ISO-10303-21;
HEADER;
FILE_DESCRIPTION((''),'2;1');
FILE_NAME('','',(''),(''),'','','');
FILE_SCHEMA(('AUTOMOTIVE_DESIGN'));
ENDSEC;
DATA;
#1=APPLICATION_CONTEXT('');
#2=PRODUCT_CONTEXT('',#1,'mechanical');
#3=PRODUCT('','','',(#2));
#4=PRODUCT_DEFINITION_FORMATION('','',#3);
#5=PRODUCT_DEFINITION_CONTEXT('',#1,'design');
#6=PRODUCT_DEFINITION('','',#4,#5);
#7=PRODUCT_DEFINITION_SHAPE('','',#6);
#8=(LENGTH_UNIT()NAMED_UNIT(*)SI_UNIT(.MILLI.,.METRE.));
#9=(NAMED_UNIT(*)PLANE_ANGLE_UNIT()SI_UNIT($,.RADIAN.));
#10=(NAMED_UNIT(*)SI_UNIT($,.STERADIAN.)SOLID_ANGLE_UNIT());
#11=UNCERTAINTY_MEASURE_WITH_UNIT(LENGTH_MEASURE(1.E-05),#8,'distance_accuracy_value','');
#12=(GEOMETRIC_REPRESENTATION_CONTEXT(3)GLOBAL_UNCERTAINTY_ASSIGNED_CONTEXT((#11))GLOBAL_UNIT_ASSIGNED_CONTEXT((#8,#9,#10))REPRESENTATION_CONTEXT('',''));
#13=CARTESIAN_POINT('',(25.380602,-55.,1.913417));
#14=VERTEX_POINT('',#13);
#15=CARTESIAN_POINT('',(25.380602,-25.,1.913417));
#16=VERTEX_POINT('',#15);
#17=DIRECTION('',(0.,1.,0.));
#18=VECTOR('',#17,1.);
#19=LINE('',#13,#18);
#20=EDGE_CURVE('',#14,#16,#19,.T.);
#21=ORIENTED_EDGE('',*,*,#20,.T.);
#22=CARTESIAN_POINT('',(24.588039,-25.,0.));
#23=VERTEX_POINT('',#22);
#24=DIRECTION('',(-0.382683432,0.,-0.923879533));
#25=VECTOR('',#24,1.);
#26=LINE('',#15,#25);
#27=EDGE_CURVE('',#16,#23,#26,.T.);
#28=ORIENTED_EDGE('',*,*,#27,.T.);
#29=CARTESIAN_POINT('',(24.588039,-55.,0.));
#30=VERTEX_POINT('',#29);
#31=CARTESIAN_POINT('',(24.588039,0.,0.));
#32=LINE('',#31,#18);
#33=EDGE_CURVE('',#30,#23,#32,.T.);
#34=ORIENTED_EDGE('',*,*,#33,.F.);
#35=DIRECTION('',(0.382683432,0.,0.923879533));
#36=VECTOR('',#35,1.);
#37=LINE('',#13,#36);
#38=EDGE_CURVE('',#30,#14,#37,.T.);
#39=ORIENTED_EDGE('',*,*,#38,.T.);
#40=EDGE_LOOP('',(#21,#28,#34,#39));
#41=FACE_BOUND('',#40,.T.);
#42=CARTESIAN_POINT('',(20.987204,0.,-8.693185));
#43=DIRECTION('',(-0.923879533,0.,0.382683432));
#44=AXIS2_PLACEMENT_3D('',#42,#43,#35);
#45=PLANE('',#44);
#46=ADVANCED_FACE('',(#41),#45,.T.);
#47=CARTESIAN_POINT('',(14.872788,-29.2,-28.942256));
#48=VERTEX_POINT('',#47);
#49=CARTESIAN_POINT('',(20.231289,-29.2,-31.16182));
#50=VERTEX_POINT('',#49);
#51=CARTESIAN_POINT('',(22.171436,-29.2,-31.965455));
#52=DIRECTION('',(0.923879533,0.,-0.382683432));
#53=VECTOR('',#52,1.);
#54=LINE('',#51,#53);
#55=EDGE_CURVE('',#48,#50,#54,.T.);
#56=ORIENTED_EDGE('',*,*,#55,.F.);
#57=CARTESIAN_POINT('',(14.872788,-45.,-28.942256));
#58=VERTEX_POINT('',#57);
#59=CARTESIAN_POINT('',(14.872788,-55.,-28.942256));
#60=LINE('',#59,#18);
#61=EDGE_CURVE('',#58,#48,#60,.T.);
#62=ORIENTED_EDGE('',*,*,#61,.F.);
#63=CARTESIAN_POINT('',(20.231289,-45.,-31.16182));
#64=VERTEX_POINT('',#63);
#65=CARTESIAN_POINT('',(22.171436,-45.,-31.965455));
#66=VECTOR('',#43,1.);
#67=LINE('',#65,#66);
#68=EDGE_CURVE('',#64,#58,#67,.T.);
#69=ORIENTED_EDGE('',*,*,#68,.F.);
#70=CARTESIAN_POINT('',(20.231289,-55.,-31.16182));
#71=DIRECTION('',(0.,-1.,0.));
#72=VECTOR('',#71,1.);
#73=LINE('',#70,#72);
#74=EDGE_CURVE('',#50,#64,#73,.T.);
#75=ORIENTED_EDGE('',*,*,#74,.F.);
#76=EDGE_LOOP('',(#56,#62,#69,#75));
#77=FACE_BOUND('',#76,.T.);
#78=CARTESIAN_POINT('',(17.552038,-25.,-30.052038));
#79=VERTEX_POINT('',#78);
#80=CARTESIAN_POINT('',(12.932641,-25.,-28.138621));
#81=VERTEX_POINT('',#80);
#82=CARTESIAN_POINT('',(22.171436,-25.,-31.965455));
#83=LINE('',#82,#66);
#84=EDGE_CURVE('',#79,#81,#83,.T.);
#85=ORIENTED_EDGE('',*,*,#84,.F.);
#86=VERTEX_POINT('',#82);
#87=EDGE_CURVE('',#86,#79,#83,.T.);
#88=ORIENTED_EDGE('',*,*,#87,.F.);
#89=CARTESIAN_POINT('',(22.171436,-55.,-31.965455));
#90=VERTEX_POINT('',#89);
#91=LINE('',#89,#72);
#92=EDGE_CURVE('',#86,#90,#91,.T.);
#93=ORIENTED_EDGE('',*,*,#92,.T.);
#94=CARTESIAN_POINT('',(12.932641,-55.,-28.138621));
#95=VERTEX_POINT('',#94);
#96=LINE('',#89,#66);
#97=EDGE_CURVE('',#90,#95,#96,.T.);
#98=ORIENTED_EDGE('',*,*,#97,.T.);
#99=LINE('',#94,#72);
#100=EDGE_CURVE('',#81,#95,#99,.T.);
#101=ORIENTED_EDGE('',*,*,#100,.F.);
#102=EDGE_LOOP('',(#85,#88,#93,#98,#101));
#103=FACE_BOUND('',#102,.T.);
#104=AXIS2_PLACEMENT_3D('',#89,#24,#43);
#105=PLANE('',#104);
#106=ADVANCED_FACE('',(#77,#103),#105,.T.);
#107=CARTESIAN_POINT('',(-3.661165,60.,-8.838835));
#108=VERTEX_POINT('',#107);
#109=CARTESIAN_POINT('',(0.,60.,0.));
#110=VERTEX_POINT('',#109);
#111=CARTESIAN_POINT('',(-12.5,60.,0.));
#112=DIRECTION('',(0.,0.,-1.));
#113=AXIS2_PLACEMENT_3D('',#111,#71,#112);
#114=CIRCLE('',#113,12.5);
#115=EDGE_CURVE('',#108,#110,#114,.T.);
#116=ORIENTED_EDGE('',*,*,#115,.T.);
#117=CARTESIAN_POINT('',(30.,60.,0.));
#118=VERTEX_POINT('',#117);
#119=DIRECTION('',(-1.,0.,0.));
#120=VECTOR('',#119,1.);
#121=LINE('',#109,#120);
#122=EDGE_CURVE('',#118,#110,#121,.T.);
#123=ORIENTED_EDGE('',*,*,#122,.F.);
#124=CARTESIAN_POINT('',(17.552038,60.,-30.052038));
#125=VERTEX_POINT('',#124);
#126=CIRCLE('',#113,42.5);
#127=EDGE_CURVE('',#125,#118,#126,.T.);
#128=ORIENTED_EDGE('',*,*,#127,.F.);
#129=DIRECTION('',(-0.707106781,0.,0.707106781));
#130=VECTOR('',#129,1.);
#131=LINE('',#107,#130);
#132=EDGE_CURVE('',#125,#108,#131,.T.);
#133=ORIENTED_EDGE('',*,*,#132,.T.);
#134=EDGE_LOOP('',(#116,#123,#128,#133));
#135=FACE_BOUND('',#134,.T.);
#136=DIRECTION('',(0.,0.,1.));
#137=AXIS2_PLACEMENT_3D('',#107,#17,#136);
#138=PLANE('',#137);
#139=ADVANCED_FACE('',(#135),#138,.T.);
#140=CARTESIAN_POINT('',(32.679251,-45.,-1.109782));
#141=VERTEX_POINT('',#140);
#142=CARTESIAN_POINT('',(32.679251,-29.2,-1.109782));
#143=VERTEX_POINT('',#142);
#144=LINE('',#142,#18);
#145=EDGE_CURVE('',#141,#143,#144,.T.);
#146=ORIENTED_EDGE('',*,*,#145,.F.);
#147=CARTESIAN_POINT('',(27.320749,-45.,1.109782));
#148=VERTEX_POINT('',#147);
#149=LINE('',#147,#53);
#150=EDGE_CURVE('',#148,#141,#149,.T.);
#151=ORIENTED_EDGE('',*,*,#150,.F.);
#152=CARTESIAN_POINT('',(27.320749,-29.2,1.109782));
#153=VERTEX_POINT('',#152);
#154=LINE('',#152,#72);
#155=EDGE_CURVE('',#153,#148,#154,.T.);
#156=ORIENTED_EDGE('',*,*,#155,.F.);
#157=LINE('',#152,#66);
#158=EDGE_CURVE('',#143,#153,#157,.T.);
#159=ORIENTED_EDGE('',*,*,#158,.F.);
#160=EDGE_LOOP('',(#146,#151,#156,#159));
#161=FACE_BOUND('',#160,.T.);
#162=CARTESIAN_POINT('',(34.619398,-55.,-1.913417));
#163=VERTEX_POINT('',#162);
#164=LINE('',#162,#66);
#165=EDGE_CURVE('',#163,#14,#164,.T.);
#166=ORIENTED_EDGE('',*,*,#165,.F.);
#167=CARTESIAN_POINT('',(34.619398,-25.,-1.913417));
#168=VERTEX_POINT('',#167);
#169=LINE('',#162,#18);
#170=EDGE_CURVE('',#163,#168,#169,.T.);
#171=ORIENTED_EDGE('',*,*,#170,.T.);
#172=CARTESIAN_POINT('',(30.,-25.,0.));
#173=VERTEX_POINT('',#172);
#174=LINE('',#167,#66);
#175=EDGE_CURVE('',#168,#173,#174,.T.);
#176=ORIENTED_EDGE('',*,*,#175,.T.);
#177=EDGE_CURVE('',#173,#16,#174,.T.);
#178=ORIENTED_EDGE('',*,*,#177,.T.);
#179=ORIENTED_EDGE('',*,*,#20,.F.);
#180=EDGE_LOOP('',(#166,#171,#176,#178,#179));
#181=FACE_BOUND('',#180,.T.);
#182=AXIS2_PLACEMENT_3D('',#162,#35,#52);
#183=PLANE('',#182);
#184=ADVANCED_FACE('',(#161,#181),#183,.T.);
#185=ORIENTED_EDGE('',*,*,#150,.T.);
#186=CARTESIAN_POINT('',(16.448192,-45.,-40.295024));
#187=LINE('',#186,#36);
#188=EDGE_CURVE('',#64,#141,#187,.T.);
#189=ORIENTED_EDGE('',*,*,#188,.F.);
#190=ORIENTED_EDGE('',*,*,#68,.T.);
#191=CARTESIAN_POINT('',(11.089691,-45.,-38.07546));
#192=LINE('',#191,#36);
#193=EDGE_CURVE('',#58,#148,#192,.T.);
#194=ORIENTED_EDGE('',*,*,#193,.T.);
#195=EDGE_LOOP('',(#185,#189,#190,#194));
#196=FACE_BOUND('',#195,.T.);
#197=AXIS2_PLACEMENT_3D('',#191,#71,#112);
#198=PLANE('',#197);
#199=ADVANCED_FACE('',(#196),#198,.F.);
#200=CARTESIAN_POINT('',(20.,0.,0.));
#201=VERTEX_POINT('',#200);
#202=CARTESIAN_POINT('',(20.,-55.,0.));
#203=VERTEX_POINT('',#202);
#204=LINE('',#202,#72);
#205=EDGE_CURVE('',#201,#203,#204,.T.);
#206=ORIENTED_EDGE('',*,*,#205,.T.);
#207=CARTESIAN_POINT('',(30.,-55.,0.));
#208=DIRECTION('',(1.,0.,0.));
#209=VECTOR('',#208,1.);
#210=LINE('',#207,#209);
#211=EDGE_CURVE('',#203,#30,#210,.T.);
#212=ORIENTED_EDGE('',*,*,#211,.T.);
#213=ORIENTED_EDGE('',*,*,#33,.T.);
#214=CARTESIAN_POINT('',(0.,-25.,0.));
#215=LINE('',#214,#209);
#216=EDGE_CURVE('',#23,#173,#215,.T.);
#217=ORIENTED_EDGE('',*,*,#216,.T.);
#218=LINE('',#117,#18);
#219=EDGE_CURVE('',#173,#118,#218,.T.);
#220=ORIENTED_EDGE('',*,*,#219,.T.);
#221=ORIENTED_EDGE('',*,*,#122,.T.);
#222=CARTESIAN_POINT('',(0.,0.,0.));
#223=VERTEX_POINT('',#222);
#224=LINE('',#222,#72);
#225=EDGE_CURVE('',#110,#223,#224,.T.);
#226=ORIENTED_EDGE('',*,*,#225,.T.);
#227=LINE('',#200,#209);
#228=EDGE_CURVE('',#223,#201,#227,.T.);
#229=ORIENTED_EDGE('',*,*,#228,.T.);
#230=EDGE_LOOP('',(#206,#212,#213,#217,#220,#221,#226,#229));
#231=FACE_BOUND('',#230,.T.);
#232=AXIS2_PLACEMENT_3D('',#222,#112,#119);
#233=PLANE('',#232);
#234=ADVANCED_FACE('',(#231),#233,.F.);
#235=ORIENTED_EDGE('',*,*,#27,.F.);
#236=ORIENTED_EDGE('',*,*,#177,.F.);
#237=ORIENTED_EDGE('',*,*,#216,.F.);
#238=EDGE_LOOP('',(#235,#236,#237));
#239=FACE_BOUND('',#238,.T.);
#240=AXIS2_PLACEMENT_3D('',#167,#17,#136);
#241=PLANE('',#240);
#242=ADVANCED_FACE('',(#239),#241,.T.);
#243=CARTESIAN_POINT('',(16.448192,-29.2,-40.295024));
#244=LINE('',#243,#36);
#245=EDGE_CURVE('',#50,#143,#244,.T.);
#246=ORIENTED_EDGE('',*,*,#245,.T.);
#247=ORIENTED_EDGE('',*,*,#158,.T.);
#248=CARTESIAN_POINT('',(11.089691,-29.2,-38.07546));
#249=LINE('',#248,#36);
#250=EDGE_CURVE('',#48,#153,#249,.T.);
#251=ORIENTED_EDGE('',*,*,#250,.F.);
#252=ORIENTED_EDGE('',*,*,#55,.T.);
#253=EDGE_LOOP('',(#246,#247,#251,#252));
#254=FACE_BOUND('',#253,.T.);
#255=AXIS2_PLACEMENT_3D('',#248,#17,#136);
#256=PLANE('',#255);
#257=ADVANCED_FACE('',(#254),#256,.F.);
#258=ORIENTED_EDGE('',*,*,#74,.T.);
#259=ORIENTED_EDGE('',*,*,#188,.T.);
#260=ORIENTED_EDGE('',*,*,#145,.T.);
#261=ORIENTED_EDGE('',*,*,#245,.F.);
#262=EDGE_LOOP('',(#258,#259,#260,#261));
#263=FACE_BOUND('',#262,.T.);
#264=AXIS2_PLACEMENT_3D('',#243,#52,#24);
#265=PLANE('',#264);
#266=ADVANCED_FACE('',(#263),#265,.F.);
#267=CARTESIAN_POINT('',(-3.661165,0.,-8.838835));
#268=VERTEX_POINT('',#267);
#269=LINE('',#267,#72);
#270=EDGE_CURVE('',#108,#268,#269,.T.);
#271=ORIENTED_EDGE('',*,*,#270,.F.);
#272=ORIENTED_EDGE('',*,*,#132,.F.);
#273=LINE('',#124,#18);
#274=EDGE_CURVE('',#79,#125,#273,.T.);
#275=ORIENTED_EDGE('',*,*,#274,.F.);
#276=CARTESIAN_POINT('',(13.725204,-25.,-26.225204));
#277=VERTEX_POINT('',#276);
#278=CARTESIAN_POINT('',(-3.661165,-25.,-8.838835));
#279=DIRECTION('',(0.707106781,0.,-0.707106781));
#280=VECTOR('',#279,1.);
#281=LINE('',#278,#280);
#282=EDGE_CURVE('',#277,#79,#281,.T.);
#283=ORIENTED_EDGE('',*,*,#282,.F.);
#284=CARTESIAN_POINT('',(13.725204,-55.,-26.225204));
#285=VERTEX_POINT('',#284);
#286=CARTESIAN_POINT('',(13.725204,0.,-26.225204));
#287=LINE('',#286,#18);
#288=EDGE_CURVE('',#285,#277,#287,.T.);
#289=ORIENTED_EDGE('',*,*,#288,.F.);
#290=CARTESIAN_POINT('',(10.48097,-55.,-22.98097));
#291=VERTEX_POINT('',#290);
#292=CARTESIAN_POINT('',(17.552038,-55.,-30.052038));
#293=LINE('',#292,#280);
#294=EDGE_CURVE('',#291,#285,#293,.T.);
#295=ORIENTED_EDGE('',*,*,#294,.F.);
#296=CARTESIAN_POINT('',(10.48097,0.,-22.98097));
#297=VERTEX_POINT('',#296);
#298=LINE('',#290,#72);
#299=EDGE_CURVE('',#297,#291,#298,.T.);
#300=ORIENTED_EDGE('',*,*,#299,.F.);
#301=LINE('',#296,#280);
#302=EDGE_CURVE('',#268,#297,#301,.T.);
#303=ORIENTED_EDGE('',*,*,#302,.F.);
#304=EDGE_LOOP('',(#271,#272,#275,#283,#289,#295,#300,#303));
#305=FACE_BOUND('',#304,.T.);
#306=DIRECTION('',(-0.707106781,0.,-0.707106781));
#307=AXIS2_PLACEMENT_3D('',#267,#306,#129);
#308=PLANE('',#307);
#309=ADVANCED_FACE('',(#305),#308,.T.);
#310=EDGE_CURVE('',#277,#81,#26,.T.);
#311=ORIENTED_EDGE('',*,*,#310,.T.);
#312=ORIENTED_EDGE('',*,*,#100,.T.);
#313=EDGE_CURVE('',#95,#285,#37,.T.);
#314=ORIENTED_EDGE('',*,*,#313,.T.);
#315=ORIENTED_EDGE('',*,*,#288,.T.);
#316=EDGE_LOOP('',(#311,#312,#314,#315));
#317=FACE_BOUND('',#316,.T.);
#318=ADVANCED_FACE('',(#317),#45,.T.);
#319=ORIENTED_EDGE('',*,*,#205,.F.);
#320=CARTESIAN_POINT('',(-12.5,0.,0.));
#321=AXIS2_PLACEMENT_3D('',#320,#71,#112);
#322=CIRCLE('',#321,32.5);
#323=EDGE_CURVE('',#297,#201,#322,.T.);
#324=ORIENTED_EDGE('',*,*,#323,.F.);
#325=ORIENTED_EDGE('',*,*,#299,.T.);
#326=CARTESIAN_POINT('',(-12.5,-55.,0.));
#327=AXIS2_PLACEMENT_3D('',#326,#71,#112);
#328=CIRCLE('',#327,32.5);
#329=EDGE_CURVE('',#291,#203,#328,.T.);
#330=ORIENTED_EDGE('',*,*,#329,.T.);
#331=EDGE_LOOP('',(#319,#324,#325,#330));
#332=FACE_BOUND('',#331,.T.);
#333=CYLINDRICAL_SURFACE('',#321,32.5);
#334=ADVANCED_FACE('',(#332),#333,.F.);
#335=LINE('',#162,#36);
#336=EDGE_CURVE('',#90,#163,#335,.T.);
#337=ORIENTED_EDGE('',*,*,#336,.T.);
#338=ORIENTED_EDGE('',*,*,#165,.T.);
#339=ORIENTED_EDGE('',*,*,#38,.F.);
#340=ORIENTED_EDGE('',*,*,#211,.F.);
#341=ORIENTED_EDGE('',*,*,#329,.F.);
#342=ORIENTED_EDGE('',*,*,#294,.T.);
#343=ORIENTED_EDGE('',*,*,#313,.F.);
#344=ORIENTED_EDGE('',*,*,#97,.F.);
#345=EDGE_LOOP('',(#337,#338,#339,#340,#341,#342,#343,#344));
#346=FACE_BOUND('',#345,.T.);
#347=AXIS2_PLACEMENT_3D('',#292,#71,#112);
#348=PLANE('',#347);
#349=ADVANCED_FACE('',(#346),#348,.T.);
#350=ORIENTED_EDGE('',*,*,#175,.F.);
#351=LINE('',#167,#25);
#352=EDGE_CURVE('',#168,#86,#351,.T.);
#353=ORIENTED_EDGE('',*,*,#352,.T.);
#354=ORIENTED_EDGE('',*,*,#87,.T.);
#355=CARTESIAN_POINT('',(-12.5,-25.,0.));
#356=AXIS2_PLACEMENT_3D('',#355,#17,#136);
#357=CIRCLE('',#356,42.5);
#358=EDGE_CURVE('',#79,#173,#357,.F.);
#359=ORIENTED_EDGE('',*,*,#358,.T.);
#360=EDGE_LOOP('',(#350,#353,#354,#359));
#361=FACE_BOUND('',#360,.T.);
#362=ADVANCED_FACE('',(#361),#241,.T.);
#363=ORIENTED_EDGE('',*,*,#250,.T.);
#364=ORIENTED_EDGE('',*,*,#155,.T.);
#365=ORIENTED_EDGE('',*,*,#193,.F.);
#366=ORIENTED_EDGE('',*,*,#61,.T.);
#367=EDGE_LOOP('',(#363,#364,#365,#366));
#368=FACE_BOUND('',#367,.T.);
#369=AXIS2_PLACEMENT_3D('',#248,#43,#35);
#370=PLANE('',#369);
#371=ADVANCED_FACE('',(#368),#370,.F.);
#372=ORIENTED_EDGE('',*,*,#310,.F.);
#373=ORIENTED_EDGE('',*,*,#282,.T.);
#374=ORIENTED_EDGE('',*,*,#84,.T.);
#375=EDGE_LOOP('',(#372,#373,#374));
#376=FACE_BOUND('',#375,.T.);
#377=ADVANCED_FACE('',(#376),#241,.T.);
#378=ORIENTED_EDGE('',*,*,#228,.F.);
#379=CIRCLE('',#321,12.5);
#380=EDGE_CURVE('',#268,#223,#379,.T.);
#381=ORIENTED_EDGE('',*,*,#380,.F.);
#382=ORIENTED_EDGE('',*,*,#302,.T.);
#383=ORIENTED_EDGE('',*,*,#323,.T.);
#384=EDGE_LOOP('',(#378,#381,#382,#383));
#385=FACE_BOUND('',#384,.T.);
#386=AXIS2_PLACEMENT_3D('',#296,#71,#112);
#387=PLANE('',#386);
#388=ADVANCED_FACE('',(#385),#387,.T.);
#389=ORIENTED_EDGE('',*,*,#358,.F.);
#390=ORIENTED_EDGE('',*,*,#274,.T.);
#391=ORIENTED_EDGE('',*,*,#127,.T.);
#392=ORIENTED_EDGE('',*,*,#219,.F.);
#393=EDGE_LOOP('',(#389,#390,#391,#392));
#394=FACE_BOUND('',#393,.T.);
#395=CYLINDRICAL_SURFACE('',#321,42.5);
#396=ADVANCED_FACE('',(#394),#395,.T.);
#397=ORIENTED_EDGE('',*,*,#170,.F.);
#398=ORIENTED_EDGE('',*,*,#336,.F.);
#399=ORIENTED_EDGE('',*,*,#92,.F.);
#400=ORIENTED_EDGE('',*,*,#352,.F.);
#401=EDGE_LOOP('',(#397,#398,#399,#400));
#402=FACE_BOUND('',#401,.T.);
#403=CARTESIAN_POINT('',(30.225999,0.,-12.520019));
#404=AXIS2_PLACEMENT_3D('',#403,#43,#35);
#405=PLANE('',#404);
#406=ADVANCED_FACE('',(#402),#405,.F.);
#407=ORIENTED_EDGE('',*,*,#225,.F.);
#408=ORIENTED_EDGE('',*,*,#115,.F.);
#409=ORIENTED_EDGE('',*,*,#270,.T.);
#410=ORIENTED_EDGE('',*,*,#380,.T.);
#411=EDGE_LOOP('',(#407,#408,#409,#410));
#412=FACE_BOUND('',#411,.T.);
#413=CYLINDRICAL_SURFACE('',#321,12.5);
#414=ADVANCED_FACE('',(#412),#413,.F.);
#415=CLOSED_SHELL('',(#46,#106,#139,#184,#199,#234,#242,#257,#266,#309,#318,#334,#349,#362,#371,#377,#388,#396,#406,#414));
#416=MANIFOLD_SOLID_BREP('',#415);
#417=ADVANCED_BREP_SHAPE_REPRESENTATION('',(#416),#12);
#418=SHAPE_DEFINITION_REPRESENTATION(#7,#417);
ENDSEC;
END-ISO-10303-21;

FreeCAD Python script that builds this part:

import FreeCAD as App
import Part
import Sketcher
from FreeCAD import Vector
Q = App.Units.Quantity

doc = App.newDocument("Part")
body = doc.addObject("PartDesign::Body", "Body")

# Sketch on XY plane
sketch1 = body.newObject("Sketcher::SketchObject", "Sketch")
sketch1.AttachmentSupport = (doc.getObject("XY_Plane"), [""])
sketch1.MapMode = "FlatFace"
sketch1.addGeometry(Part.LineSegment(Vector(0, 60, 0), Vector(0, 0, 0)), False)
sketch1.addGeometry(Part.LineSegment(Vector(0, 0, 0), Vector(20, 0, 0)), False)
sketch1.addGeometry(Part.LineSegment(Vector(20, 0, 0), Vector(20, -55, 0)), False)
sketch1.addGeometry(Part.LineSegment(Vector(20, -55, 0), Vector(30, -55, 0)), False)
sketch1.addGeometry(Part.LineSegment(Vector(30, -55, 0), Vector(30, 60, 0)), False)
sketch1.addGeometry(Part.LineSegment(Vector(30, 60, 0), Vector(0, 60, 0)), False)
sketch1.addGeometry(Part.LineSegment(Vector(-12.5, -55, 0), Vector(-12.5, 60, 0)), True)  # axis
sketch1.addConstraint(Sketcher.Constraint("Coincident", 0, 2, 1, 1))
sketch1.addConstraint(Sketcher.Constraint("Coincident", 1, 2, 2, 1))
sketch1.addConstraint(Sketcher.Constraint("Coincident", 2, 2, 3, 1))
sketch1.addConstraint(Sketcher.Constraint("Coincident", 3, 2, 4, 1))
sketch1.addConstraint(Sketcher.Constraint("Coincident", 4, 2, 5, 1))
sketch1.addConstraint(Sketcher.Constraint("Coincident", 5, 2, 0, 1))
sketch1.addConstraint(Sketcher.Constraint("Vertical", 0))
sketch1.addConstraint(Sketcher.Constraint("Horizontal", 1))
sketch1.addConstraint(Sketcher.Constraint("Vertical", 2))
sketch1.addConstraint(Sketcher.Constraint("Horizontal", 3))
sketch1.addConstraint(Sketcher.Constraint("Vertical", 4))
sketch1.addConstraint(Sketcher.Constraint("Horizontal", 5))
sketch1.addConstraint(Sketcher.Constraint("Vertical", 6))
sketch1.addConstraint(Sketcher.Constraint("Coincident", 0, 2, -1, 1))
sketch1.addConstraint(Sketcher.Constraint("Horizontal", 3, 2, 6, 1))
sketch1.addConstraint(Sketcher.Constraint("Horizontal", 5, 2, 6, 2))
sketch1.addConstraint(Sketcher.Constraint("DistanceX", 1, 1, 1, 2, Q("20 mm")))
sketch1.addConstraint(Sketcher.Constraint("DistanceX", 3, 1, 3, 2, Q("10 mm")))
sketch1.addConstraint(Sketcher.Constraint("DistanceY", 0, 2, 0, 1, Q("60 mm")))
sketch1.addConstraint(Sketcher.Constraint("DistanceY", 2, 2, 2, 1, Q("55 mm")))
sketch1.addConstraint(Sketcher.Constraint("DistanceX", 6, 1, -1, 1, Q("12.5 mm")))
revolution = body.newObject("PartDesign::Revolution", "Revolution")
revolution.Profile = sketch1
revolution.ReferenceAxis = (sketch1, ["Axis0"])
revolution.Angle = 45

# Sketch on an angled plane
sketch2 = body.newObject("Sketcher::SketchObject", "Sketch001")
sketch2.Placement = App.Placement(Vector(25.606602, 0, -10.606602), App.Rotation(Vector(0.382683432, 0, 0.923879533), Vector(0, 1.000000001, 0), Vector(-0.923879533, 0, 0.382683432), "ZXY"))
sketch2.addGeometry(Part.LineSegment(Vector(-21.047589, -25, 0), Vector(-21.047589, -55, 0)), False)
sketch2.addGeometry(Part.LineSegment(Vector(-21.047589, -55, 0), Vector(11.480503, -55, 0)), False)
sketch2.addGeometry(Part.LineSegment(Vector(11.480503, -55, 0), Vector(11.480503, -25, 0)), False)
sketch2.addGeometry(Part.LineSegment(Vector(11.480503, -25, 0), Vector(-21.047589, -25, 0)), False)
sketch2.addConstraint(Sketcher.Constraint("Coincident", 0, 2, 1, 1))
sketch2.addConstraint(Sketcher.Constraint("Coincident", 1, 2, 2, 1))
sketch2.addConstraint(Sketcher.Constraint("Coincident", 2, 2, 3, 1))
sketch2.addConstraint(Sketcher.Constraint("Coincident", 3, 2, 0, 1))
sketch2.addConstraint(Sketcher.Constraint("Vertical", 0))
sketch2.addConstraint(Sketcher.Constraint("Horizontal", 1))
sketch2.addConstraint(Sketcher.Constraint("Vertical", 2))
sketch2.addConstraint(Sketcher.Constraint("Horizontal", 3))
sketch2.addConstraint(Sketcher.Constraint("DistanceY", 0, 2, 0, 1, Q("30 mm")))
sketch2.addConstraint(Sketcher.Constraint("DistanceY", 0, 2, -1, 1, Q("55 mm")))
sketch2.addConstraint(Sketcher.Constraint("DistanceX", 1, 1, 1, 2, Q("32.528092 mm")))
sketch2.addConstraint(Sketcher.Constraint("DistanceX", 0, 2, -1, 1, Q("21.047589 mm")))
pad1 = body.newObject("PartDesign::Pad", "Pad")
pad1.Profile = sketch2
pad1.Length = 10
pad1.Midplane = True

# Sketch on an angled plane
sketch3 = body.newObject("Sketcher::SketchObject", "Sketch002")
sketch3.Placement = App.Placement(Vector(4.393398, 0, 10.606602), App.Rotation(Vector(0.923879533, 0, -0.382683432), Vector(0, 1.000000001, 0), Vector(0.382683432, 0, 0.923879533), "ZXY"))
sketch3.addGeometry(Part.LineSegment(Vector(24.816386, -29.2, 0), Vector(24.816386, -45, 0)), False)
sketch3.addGeometry(Part.LineSegment(Vector(24.816386, -45, 0), Vector(30.616386, -45, 0)), False)
sketch3.addGeometry(Part.LineSegment(Vector(30.616386, -45, 0), Vector(30.616386, -29.2, 0)), False)
sketch3.addGeometry(Part.LineSegment(Vector(30.616386, -29.2, 0), Vector(24.816386, -29.2, 0)), False)
sketch3.addConstraint(Sketcher.Constraint("Coincident", 0, 2, 1, 1))
sketch3.addConstraint(Sketcher.Constraint("Coincident", 1, 2, 2, 1))
sketch3.addConstraint(Sketcher.Constraint("Coincident", 2, 2, 3, 1))
sketch3.addConstraint(Sketcher.Constraint("Coincident", 3, 2, 0, 1))
sketch3.addConstraint(Sketcher.Constraint("Vertical", 0))
sketch3.addConstraint(Sketcher.Constraint("Horizontal", 1))
sketch3.addConstraint(Sketcher.Constraint("Vertical", 2))
sketch3.addConstraint(Sketcher.Constraint("Horizontal", 3))
sketch3.addConstraint(Sketcher.Constraint("DistanceX", 1, 1, 1, 2, Q("5.8 mm")))
sketch3.addConstraint(Sketcher.Constraint("DistanceY", 0, 2, 0, 1, Q("15.8 mm")))
sketch3.addConstraint(Sketcher.Constraint("DistanceY", 0, 2, -1, 1, Q("45 mm")))
sketch3.addConstraint(Sketcher.Constraint("DistanceX", -1, 1, 0, 2, Q("24.816386 mm")))
pocket1 = body.newObject("PartDesign::Pocket", "Pocket")
pocket1.Profile = sketch3
pocket1.Type = "ThroughAll"

doc.recompute()
